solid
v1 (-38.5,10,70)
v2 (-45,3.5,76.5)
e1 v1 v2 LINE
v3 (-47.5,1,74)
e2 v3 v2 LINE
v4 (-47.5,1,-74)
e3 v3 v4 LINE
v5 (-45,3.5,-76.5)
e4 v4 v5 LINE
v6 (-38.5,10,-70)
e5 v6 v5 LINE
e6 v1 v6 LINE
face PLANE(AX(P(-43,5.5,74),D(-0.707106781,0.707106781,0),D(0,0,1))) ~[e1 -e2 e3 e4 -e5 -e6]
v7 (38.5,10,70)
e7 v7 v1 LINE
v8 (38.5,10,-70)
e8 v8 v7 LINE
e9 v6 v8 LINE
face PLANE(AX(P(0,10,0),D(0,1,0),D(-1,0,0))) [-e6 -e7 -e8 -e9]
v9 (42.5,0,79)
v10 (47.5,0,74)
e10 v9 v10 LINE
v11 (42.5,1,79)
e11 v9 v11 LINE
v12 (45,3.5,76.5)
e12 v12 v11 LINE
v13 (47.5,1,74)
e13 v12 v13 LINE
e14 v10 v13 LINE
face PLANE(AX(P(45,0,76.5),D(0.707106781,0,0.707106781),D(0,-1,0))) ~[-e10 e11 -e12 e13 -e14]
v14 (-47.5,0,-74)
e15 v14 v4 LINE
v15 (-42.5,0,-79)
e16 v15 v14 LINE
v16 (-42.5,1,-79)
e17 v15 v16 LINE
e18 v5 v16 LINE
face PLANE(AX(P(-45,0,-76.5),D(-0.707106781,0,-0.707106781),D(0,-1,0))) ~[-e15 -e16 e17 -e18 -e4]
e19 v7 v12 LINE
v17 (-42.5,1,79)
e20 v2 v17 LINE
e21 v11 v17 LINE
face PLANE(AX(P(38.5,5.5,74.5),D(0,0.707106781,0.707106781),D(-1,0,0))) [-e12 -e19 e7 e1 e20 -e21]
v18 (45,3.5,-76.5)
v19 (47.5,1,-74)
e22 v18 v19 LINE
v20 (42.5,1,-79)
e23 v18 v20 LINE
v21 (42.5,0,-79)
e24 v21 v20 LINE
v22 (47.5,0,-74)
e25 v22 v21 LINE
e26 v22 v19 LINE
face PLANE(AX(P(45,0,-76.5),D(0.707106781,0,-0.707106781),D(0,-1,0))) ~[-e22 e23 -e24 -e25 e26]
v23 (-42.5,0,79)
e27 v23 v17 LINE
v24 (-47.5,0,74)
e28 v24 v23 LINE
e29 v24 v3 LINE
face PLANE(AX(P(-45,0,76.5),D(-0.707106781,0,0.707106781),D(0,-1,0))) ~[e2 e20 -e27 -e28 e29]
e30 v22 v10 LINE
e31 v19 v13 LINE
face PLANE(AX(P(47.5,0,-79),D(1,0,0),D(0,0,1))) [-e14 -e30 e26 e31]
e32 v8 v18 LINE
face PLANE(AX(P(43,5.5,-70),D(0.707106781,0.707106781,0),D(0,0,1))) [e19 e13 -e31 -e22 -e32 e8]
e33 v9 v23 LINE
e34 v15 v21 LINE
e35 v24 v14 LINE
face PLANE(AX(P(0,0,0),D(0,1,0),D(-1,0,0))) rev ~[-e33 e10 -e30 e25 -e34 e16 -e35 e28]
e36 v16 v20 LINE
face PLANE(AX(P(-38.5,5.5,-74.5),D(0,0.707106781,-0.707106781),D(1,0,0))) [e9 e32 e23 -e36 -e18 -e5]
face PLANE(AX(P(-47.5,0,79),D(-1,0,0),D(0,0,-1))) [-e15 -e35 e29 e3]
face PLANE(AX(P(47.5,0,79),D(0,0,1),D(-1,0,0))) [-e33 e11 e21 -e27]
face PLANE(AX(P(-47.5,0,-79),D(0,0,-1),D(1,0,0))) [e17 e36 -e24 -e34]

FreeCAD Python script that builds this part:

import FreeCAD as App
import Part
import Sketcher

V = App.Vector


def edges_at(feature, points):
    """Names of the edges that pass closest to the given points."""
    edges = feature.Shape.Edges
    near = lambda p: min(range(len(edges)), key=lambda i: edges[i].distToShape(Part.Vertex(*p))[0])
    return sorted({f"Edge{near(p) + 1}" for p in points})


def add_polygon(sketch, points):
    """Adds a closed chain of lines whose ends are joined by coincident constraints."""
    first, n = sketch.GeometryCount, len(points)
    for a, b in zip(points, points[1:] + points[:1]):
        sketch.addGeometry(Part.LineSegment(App.Vector(*a, 0), App.Vector(*b, 0)), False)
    for i in range(n):
        sketch.addConstraint(Sketcher.Constraint("Coincident", first + i, 2, first + (i + 1) % n, 1))

doc = App.newDocument("Part")
body = doc.addObject("PartDesign::Body", "Body")

sketch1 = body.newObject("Sketcher::SketchObject", "Sketch")
sketch1.AttachmentSupport = (doc.getObject("XZ_Plane"), [""])
sketch1.MapMode = "FlatFace"
add_polygon(sketch1, [(-48, 79), (48, 79), (48, -79), (-48, -79)])
sketch1.addConstraint([
    Sketcher.Constraint("Horizontal", 0),
    Sketcher.Constraint("Vertical", 1),
    Sketcher.Constraint("Horizontal", 2),
    Sketcher.Constraint("Vertical", 3),
    Sketcher.Constraint("Symmetric", 0, 2, 2, 2, -1, 1),
    Sketcher.Constraint("DistanceX", 0, 1, 0, 2, 95.0),
    Sketcher.Constraint("DistanceY", 1, 2, 1, 1, 158.0),
])
pad1 = body.newObject("PartDesign::Pad", "Pad")
pad1.Profile = sketch1
pad1.Length = 10
pad1.Reversed = True
doc.recompute()

chamfer = body.newObject("PartDesign::Chamfer", "Chamfer")
chamfer.Base = (pad1, edges_at(pad1, [(47.5, 5, 79)]))
chamfer.Size = 5
doc.recompute()

chamfer2 = body.newObject("PartDesign::Chamfer", "Chamfer001")
chamfer2.Base = (chamfer, edges_at(chamfer, [(47.5, 5, -79)]))
chamfer2.Size = 5
doc.recompute()

chamfer3 = body.newObject("PartDesign::Chamfer", "Chamfer002")
chamfer3.Base = (chamfer2, edges_at(chamfer2, [(-47.5, 5, -79)]))
chamfer3.Size = 5
doc.recompute()

chamfer4 = body.newObject("PartDesign::Chamfer", "Chamfer003")
chamfer4.Base = (chamfer3, edges_at(chamfer3, [(-47.5, 5, 79)]))
chamfer4.Size = 5
doc.recompute()

chamfer5 = body.newObject("PartDesign::Chamfer", "Chamfer004")
chamfer5.Base = (chamfer4, edges_at(chamfer4, [(-47.5, 10, 0)]))
chamfer5.Size = 9
doc.recompute()

chamfer6 = body.newObject("PartDesign::Chamfer", "Chamfer005")
chamfer6.Base = (chamfer5, edges_at(chamfer5, [(2, 10, -79)]))
chamfer6.Size = 9
doc.recompute()

chamfer7 = body.newObject("PartDesign::Chamfer", "Chamfer006")
chamfer7.Base = (chamfer6, edges_at(chamfer6, [(47.5, 10, 2)]))
chamfer7.Size = 9
doc.recompute()

chamfer8 = body.newObject("PartDesign::Chamfer", "Chamfer007")
chamfer8.Base = (chamfer7, edges_at(chamfer7, [(0, 10, 79)]))
chamfer8.Size = 9

doc.recompute()
